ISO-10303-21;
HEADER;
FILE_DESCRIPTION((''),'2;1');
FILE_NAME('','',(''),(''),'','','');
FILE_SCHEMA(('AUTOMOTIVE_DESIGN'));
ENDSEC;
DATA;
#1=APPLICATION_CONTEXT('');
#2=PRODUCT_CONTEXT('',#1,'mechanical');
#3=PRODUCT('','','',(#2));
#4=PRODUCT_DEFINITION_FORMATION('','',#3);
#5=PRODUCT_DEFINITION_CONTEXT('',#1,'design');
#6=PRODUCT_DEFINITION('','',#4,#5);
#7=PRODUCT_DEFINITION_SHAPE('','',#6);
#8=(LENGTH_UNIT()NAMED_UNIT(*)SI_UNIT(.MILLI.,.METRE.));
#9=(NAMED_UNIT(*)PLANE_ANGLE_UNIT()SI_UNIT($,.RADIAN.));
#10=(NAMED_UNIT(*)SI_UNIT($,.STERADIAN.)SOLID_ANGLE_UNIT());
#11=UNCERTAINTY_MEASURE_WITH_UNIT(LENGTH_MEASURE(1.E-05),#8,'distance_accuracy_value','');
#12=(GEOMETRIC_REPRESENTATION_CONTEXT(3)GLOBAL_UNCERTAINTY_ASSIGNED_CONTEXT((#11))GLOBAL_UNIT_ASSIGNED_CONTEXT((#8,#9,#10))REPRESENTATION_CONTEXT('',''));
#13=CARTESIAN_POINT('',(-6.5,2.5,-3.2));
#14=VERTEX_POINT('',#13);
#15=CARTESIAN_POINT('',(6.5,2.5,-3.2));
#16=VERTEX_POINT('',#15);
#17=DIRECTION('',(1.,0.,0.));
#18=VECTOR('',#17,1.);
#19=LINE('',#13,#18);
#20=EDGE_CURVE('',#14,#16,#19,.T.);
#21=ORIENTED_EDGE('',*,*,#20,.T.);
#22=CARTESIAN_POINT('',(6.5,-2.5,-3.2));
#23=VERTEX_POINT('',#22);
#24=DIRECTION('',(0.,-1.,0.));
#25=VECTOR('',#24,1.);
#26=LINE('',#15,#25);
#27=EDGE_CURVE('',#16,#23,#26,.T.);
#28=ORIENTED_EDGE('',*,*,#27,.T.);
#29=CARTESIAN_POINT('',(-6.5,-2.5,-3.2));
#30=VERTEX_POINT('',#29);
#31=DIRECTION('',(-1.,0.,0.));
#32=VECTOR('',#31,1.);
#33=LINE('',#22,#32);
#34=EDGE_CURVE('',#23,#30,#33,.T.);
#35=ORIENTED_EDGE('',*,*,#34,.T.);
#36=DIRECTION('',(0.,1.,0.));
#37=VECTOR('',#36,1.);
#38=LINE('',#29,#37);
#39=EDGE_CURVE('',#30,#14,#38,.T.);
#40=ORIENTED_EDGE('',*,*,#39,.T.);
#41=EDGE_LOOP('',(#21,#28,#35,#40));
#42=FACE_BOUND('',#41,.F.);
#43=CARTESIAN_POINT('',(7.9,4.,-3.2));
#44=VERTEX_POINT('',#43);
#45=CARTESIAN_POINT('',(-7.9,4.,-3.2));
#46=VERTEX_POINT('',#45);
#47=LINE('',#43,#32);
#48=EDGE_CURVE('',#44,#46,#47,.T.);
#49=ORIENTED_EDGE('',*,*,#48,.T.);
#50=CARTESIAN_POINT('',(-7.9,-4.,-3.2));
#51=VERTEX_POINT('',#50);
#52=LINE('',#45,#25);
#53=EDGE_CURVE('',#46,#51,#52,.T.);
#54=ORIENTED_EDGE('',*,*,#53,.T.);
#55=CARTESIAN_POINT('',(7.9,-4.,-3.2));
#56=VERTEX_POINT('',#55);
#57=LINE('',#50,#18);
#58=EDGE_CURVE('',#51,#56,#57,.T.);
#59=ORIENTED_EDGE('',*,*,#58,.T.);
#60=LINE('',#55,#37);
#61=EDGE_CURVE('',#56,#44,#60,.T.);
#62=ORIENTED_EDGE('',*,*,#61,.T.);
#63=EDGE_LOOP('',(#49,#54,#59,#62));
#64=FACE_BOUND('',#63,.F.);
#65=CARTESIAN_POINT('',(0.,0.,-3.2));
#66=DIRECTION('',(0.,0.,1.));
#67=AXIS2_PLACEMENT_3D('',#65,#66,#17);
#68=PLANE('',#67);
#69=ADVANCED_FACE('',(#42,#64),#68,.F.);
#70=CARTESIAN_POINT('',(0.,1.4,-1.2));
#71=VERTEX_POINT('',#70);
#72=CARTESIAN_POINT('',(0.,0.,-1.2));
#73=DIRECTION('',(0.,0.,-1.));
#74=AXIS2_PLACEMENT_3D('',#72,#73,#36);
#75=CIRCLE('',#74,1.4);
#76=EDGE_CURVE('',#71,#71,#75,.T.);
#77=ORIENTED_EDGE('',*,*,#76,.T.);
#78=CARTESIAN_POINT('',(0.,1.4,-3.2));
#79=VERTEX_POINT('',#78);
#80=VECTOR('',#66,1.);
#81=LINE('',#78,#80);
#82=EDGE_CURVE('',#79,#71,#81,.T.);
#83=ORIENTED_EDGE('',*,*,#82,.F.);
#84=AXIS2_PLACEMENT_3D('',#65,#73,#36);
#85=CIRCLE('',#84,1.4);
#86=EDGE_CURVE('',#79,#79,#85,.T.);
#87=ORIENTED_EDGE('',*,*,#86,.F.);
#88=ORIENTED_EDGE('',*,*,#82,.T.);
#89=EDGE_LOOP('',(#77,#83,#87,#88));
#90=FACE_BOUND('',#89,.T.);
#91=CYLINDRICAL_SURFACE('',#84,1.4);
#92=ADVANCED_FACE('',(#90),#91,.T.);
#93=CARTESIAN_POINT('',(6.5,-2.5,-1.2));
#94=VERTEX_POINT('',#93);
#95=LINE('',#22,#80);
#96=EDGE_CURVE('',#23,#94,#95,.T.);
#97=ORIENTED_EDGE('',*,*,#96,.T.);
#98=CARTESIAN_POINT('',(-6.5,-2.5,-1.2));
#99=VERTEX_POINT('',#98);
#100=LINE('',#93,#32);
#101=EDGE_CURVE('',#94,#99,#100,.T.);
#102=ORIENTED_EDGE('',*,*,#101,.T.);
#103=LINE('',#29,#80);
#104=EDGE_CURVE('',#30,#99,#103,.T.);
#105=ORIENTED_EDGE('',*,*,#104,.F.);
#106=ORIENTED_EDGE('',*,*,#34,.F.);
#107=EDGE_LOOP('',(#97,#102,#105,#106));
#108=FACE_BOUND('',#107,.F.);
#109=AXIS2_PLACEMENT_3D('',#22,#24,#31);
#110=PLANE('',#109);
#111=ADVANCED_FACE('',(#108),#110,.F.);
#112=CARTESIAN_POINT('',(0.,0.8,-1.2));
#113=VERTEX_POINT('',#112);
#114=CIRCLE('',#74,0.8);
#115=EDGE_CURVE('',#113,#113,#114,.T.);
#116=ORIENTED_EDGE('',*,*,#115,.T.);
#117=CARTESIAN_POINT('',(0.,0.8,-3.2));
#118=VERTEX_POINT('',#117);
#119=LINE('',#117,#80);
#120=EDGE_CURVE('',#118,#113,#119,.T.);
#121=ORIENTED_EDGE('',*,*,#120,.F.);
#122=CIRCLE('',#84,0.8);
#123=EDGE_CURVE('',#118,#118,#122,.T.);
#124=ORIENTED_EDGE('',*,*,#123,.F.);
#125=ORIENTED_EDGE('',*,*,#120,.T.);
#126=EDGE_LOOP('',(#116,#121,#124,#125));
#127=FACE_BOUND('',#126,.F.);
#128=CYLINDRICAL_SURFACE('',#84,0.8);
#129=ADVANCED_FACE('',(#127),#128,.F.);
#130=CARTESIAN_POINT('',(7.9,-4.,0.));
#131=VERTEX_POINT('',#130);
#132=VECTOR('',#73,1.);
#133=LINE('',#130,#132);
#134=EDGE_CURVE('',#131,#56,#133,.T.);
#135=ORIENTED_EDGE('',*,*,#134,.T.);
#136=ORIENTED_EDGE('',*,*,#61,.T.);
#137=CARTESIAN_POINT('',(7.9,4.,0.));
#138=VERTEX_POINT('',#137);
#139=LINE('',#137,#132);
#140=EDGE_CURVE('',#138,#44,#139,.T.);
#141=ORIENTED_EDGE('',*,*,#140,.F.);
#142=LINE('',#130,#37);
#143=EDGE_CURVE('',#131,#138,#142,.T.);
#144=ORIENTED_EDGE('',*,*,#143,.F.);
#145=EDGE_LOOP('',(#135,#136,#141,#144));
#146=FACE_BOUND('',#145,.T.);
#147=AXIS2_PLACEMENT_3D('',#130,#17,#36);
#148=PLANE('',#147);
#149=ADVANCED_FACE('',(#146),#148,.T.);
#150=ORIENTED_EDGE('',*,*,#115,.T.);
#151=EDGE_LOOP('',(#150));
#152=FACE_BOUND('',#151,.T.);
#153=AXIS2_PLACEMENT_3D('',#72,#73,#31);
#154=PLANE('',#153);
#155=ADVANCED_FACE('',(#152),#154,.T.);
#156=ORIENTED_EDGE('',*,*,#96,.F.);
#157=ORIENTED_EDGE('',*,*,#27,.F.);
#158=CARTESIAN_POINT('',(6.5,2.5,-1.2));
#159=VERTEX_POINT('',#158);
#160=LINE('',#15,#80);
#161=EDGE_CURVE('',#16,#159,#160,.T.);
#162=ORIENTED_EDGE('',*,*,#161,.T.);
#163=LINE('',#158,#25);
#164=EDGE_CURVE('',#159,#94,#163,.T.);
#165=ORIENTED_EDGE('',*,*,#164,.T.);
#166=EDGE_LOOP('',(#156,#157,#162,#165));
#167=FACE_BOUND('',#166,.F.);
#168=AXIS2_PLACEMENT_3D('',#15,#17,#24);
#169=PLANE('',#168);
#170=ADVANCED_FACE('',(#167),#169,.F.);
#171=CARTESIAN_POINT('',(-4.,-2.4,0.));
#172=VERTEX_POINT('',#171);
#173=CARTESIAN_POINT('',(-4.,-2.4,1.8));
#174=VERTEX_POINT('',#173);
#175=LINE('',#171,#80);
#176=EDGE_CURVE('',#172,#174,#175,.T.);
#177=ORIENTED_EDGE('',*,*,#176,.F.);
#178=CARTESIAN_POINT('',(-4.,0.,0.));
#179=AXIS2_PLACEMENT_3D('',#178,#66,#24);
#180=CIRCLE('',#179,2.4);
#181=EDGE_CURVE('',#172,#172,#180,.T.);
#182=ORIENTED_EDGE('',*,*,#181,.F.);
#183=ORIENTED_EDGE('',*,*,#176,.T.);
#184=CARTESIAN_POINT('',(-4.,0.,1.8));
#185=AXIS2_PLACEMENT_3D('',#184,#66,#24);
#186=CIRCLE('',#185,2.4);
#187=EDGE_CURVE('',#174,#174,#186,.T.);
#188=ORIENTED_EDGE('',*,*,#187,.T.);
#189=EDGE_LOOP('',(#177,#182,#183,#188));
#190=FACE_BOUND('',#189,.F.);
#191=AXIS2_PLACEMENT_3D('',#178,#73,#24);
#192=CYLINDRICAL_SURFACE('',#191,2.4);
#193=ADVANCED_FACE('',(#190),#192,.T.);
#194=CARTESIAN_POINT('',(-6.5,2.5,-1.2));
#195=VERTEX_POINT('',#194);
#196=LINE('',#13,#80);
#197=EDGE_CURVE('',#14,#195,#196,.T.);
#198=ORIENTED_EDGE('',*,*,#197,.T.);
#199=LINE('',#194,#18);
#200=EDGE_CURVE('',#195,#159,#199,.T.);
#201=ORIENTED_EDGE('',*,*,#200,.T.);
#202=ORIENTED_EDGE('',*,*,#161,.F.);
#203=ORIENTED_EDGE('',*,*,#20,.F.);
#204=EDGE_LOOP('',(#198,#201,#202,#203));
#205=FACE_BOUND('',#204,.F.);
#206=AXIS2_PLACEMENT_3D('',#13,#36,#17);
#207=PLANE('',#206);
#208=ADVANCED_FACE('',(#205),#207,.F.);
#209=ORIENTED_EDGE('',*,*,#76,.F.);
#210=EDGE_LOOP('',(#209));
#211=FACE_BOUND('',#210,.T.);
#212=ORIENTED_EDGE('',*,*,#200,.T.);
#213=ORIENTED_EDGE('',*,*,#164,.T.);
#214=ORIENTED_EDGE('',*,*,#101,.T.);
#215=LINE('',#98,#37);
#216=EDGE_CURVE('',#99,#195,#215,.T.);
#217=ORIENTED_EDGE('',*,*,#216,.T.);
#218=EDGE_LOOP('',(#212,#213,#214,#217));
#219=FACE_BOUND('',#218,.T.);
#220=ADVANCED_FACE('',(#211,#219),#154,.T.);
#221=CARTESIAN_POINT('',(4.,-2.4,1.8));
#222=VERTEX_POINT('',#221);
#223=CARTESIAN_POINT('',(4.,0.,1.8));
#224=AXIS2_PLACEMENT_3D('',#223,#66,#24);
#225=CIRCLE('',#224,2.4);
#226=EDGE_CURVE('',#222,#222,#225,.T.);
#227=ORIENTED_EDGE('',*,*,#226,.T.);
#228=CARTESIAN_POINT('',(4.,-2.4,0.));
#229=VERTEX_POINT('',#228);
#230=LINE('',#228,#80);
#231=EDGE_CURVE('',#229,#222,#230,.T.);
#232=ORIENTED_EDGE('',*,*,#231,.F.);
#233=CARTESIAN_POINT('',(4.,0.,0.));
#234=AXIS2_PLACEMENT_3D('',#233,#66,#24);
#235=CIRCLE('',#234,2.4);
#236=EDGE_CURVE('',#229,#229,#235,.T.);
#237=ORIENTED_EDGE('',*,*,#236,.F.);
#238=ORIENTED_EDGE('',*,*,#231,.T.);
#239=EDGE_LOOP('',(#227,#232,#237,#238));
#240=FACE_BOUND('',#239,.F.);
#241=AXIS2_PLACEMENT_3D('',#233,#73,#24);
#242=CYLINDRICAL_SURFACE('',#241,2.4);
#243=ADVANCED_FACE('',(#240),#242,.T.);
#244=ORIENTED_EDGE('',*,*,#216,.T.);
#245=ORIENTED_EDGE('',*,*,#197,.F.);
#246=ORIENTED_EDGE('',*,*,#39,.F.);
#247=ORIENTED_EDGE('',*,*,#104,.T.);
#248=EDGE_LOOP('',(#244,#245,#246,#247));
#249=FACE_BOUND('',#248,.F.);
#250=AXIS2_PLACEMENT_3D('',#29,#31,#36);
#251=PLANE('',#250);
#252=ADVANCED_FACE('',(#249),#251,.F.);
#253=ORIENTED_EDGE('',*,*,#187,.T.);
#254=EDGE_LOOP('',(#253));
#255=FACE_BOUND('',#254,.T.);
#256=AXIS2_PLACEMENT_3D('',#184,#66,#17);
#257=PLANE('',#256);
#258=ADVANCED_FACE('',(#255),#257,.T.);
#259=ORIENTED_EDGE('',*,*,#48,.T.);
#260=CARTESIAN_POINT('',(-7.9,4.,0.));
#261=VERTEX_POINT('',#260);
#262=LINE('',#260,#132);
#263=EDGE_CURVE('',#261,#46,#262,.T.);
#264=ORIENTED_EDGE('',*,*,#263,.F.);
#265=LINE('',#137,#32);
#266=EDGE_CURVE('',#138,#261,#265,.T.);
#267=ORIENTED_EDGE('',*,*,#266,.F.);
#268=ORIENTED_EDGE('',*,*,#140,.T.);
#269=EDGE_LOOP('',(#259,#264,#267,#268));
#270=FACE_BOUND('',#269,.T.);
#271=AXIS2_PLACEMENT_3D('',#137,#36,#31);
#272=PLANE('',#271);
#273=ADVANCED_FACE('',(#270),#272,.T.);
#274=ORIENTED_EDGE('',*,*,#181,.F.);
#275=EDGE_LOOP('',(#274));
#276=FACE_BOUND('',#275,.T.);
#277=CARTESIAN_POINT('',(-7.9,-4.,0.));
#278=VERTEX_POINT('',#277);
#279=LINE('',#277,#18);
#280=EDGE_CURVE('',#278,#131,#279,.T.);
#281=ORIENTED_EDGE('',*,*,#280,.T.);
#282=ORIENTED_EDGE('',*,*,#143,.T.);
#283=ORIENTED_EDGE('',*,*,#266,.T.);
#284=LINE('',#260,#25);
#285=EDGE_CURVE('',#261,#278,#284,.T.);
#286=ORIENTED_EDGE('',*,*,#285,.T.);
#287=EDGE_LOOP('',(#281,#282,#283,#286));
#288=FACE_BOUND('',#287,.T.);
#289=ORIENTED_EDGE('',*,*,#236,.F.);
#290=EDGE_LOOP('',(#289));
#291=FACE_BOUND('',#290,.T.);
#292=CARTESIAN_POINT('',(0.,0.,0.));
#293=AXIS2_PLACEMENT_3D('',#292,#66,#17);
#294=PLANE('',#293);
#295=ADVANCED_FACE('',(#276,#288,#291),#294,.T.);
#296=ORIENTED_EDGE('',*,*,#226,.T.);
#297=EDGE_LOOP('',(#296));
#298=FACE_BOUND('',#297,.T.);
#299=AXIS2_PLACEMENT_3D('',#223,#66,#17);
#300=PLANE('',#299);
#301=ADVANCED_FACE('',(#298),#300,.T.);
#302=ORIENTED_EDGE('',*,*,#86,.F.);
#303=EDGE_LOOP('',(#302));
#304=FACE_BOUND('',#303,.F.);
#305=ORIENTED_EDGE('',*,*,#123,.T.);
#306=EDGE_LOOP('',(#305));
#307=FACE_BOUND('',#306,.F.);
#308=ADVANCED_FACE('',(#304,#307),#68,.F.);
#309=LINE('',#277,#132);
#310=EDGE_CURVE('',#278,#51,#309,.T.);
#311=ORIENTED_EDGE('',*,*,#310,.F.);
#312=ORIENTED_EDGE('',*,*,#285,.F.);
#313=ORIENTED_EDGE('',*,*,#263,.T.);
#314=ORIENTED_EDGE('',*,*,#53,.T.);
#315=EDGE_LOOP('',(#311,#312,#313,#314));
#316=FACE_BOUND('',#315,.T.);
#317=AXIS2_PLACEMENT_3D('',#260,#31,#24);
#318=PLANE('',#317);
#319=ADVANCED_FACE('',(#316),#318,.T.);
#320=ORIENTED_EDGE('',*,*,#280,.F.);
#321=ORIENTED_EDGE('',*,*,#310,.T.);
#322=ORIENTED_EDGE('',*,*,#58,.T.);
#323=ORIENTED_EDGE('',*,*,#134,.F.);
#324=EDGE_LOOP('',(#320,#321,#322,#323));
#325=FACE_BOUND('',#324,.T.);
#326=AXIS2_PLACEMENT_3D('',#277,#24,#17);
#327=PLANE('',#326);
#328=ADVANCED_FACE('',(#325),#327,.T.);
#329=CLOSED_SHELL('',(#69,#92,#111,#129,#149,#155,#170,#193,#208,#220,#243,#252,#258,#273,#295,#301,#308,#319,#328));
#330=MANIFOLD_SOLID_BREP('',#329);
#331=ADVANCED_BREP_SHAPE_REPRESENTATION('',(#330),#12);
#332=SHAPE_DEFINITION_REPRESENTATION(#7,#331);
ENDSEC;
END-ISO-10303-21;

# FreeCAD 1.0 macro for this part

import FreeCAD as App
import Part
import Sketcher

doc = App.newDocument("Part")
body = doc.addObject("PartDesign::Body", "Body")

# Sketch on XY plane
sketch1 = body.newObject("Sketcher::SketchObject", "Sketch")
sketch1.AttachmentSupport = (doc.getObject("XY_Plane"), [""])
sketch1.MapMode = "FlatFace"
sketch1.addGeometry([
    Part.LineSegment(App.Vector(7.9, -4, 0), App.Vector(7.9, 4, 0)),
    Part.LineSegment(App.Vector(7.9, 4, 0), App.Vector(-7.9, 4, 0)),
    Part.LineSegment(App.Vector(-7.9, 4, 0), App.Vector(-7.9, -4, 0)),
    Part.LineSegment(App.Vector(-7.9, -4, 0), App.Vector(7.9, -4, 0)),
], False)
sketch1.addConstraint([
    Sketcher.Constraint("Coincident", 0, 2, 1, 1),
    Sketcher.Constraint("Coincident", 1, 2, 2, 1),
    Sketcher.Constraint("Coincident", 2, 2, 3, 1),
    Sketcher.Constraint("Coincident", 3, 2, 0, 1),
    Sketcher.Constraint("Vertical", 0),
    Sketcher.Constraint("Horizontal", 1),
    Sketcher.Constraint("Vertical", 2),
    Sketcher.Constraint("Horizontal", 3),
    Sketcher.Constraint("Symmetric", 0, 2, 2, 2, -1, 1),
    Sketcher.Constraint("DistanceY", 0, 1, 0, 2, 8.0),
    Sketcher.Constraint("DistanceX", 1, 2, 1, 1, 15.8),
])
pad1 = body.newObject("PartDesign::Pad", "Pad")
pad1.Profile = sketch1
pad1.Length = 3.2
pad1.Reversed = True

# Sketch on XY plane
sketch2 = body.newObject("Sketcher::SketchObject", "Sketch001")
sketch2.AttachmentSupport = (doc.getObject("XY_Plane"), [""])
sketch2.MapMode = "FlatFace"
sketch2.AttachmentOffset = App.Placement(App.Vector(0, 0, -3.2), App.Rotation())
sketch2.addGeometry([
    Part.LineSegment(App.Vector(-6.5, -2.5, 0), App.Vector(-6.5, 2.5, 0)),  # 0
    Part.LineSegment(App.Vector(-6.5, 2.5, 0), App.Vector(6.5, 2.5, 0)),  # 1
    Part.LineSegment(App.Vector(6.5, 2.5, 0), App.Vector(6.5, -2.5, 0)),  # 2
    Part.LineSegment(App.Vector(6.5, -2.5, 0), App.Vector(-6.5, -2.5, 0)),  # 3
    Part.Circle(App.Vector(0, 0, 0), App.Vector(0, 0, 1), 1.4),  # 4
    Part.Circle(App.Vector(0, 0, 0), App.Vector(0, 0, 1), 0.8),  # 5
], False)
sketch2.addConstraint([
    Sketcher.Constraint("Coincident", 0, 2, 1, 1),
    Sketcher.Constraint("Coincident", 1, 2, 2, 1),
    Sketcher.Constraint("Coincident", 2, 2, 3, 1),
    Sketcher.Constraint("Coincident", 3, 2, 0, 1),
    Sketcher.Constraint("Vertical", 0),
    Sketcher.Constraint("Horizontal", 1),
    Sketcher.Constraint("Vertical", 2),
    Sketcher.Constraint("Horizontal", 3),
    Sketcher.Constraint("Coincident", 4, 3, -1, 1),
    Sketcher.Constraint("Coincident", 5, 3, -1, 1),
    Sketcher.Constraint("Symmetric", 0, 2, 2, 2, -1, 1),
    Sketcher.Constraint("Diameter", 4, 2.8),
    Sketcher.Constraint("Diameter", 5, 1.6),
    Sketcher.Constraint("DistanceX", 1, 1, 1, 2, 13.0),
    Sketcher.Constraint("DistanceY", 0, 1, 0, 2, 5.0),
])
pocket1 = body.newObject("PartDesign::Pocket", "Pocket")
pocket1.Profile = sketch2
pocket1.Length = 2
pocket1.Reversed = True

# Sketch on XY plane
sketch3 = body.newObject("Sketcher::SketchObject", "Sketch002")
sketch3.AttachmentSupport = (doc.getObject("XY_Plane"), [""])
sketch3.MapMode = "FlatFace"
sketch3.addGeometry([
    Part.Circle(App.Vector(4, 0, 0), App.Vector(0, 0, 1), 2.4),
    Part.Circle(App.Vector(-4, 0, 0), App.Vector(0, 0, 1), 2.4),
], False)
sketch3.addConstraint([
    Sketcher.Constraint("Equal", 0, 1),
    Sketcher.Constraint("Symmetric", 0, 3, 1, 3, -1, 1),
    Sketcher.Constraint("PointOnObject", 0, 3, -1),
    Sketcher.Constraint("Diameter", 0, 4.8),
    Sketcher.Constraint("DistanceX", -1, 1, 0, 3, 4.0),
])
pad2 = body.newObject("PartDesign::Pad", "Pad001")
pad2.Profile = sketch3
pad2.Length = 1.8

doc.recompute()
